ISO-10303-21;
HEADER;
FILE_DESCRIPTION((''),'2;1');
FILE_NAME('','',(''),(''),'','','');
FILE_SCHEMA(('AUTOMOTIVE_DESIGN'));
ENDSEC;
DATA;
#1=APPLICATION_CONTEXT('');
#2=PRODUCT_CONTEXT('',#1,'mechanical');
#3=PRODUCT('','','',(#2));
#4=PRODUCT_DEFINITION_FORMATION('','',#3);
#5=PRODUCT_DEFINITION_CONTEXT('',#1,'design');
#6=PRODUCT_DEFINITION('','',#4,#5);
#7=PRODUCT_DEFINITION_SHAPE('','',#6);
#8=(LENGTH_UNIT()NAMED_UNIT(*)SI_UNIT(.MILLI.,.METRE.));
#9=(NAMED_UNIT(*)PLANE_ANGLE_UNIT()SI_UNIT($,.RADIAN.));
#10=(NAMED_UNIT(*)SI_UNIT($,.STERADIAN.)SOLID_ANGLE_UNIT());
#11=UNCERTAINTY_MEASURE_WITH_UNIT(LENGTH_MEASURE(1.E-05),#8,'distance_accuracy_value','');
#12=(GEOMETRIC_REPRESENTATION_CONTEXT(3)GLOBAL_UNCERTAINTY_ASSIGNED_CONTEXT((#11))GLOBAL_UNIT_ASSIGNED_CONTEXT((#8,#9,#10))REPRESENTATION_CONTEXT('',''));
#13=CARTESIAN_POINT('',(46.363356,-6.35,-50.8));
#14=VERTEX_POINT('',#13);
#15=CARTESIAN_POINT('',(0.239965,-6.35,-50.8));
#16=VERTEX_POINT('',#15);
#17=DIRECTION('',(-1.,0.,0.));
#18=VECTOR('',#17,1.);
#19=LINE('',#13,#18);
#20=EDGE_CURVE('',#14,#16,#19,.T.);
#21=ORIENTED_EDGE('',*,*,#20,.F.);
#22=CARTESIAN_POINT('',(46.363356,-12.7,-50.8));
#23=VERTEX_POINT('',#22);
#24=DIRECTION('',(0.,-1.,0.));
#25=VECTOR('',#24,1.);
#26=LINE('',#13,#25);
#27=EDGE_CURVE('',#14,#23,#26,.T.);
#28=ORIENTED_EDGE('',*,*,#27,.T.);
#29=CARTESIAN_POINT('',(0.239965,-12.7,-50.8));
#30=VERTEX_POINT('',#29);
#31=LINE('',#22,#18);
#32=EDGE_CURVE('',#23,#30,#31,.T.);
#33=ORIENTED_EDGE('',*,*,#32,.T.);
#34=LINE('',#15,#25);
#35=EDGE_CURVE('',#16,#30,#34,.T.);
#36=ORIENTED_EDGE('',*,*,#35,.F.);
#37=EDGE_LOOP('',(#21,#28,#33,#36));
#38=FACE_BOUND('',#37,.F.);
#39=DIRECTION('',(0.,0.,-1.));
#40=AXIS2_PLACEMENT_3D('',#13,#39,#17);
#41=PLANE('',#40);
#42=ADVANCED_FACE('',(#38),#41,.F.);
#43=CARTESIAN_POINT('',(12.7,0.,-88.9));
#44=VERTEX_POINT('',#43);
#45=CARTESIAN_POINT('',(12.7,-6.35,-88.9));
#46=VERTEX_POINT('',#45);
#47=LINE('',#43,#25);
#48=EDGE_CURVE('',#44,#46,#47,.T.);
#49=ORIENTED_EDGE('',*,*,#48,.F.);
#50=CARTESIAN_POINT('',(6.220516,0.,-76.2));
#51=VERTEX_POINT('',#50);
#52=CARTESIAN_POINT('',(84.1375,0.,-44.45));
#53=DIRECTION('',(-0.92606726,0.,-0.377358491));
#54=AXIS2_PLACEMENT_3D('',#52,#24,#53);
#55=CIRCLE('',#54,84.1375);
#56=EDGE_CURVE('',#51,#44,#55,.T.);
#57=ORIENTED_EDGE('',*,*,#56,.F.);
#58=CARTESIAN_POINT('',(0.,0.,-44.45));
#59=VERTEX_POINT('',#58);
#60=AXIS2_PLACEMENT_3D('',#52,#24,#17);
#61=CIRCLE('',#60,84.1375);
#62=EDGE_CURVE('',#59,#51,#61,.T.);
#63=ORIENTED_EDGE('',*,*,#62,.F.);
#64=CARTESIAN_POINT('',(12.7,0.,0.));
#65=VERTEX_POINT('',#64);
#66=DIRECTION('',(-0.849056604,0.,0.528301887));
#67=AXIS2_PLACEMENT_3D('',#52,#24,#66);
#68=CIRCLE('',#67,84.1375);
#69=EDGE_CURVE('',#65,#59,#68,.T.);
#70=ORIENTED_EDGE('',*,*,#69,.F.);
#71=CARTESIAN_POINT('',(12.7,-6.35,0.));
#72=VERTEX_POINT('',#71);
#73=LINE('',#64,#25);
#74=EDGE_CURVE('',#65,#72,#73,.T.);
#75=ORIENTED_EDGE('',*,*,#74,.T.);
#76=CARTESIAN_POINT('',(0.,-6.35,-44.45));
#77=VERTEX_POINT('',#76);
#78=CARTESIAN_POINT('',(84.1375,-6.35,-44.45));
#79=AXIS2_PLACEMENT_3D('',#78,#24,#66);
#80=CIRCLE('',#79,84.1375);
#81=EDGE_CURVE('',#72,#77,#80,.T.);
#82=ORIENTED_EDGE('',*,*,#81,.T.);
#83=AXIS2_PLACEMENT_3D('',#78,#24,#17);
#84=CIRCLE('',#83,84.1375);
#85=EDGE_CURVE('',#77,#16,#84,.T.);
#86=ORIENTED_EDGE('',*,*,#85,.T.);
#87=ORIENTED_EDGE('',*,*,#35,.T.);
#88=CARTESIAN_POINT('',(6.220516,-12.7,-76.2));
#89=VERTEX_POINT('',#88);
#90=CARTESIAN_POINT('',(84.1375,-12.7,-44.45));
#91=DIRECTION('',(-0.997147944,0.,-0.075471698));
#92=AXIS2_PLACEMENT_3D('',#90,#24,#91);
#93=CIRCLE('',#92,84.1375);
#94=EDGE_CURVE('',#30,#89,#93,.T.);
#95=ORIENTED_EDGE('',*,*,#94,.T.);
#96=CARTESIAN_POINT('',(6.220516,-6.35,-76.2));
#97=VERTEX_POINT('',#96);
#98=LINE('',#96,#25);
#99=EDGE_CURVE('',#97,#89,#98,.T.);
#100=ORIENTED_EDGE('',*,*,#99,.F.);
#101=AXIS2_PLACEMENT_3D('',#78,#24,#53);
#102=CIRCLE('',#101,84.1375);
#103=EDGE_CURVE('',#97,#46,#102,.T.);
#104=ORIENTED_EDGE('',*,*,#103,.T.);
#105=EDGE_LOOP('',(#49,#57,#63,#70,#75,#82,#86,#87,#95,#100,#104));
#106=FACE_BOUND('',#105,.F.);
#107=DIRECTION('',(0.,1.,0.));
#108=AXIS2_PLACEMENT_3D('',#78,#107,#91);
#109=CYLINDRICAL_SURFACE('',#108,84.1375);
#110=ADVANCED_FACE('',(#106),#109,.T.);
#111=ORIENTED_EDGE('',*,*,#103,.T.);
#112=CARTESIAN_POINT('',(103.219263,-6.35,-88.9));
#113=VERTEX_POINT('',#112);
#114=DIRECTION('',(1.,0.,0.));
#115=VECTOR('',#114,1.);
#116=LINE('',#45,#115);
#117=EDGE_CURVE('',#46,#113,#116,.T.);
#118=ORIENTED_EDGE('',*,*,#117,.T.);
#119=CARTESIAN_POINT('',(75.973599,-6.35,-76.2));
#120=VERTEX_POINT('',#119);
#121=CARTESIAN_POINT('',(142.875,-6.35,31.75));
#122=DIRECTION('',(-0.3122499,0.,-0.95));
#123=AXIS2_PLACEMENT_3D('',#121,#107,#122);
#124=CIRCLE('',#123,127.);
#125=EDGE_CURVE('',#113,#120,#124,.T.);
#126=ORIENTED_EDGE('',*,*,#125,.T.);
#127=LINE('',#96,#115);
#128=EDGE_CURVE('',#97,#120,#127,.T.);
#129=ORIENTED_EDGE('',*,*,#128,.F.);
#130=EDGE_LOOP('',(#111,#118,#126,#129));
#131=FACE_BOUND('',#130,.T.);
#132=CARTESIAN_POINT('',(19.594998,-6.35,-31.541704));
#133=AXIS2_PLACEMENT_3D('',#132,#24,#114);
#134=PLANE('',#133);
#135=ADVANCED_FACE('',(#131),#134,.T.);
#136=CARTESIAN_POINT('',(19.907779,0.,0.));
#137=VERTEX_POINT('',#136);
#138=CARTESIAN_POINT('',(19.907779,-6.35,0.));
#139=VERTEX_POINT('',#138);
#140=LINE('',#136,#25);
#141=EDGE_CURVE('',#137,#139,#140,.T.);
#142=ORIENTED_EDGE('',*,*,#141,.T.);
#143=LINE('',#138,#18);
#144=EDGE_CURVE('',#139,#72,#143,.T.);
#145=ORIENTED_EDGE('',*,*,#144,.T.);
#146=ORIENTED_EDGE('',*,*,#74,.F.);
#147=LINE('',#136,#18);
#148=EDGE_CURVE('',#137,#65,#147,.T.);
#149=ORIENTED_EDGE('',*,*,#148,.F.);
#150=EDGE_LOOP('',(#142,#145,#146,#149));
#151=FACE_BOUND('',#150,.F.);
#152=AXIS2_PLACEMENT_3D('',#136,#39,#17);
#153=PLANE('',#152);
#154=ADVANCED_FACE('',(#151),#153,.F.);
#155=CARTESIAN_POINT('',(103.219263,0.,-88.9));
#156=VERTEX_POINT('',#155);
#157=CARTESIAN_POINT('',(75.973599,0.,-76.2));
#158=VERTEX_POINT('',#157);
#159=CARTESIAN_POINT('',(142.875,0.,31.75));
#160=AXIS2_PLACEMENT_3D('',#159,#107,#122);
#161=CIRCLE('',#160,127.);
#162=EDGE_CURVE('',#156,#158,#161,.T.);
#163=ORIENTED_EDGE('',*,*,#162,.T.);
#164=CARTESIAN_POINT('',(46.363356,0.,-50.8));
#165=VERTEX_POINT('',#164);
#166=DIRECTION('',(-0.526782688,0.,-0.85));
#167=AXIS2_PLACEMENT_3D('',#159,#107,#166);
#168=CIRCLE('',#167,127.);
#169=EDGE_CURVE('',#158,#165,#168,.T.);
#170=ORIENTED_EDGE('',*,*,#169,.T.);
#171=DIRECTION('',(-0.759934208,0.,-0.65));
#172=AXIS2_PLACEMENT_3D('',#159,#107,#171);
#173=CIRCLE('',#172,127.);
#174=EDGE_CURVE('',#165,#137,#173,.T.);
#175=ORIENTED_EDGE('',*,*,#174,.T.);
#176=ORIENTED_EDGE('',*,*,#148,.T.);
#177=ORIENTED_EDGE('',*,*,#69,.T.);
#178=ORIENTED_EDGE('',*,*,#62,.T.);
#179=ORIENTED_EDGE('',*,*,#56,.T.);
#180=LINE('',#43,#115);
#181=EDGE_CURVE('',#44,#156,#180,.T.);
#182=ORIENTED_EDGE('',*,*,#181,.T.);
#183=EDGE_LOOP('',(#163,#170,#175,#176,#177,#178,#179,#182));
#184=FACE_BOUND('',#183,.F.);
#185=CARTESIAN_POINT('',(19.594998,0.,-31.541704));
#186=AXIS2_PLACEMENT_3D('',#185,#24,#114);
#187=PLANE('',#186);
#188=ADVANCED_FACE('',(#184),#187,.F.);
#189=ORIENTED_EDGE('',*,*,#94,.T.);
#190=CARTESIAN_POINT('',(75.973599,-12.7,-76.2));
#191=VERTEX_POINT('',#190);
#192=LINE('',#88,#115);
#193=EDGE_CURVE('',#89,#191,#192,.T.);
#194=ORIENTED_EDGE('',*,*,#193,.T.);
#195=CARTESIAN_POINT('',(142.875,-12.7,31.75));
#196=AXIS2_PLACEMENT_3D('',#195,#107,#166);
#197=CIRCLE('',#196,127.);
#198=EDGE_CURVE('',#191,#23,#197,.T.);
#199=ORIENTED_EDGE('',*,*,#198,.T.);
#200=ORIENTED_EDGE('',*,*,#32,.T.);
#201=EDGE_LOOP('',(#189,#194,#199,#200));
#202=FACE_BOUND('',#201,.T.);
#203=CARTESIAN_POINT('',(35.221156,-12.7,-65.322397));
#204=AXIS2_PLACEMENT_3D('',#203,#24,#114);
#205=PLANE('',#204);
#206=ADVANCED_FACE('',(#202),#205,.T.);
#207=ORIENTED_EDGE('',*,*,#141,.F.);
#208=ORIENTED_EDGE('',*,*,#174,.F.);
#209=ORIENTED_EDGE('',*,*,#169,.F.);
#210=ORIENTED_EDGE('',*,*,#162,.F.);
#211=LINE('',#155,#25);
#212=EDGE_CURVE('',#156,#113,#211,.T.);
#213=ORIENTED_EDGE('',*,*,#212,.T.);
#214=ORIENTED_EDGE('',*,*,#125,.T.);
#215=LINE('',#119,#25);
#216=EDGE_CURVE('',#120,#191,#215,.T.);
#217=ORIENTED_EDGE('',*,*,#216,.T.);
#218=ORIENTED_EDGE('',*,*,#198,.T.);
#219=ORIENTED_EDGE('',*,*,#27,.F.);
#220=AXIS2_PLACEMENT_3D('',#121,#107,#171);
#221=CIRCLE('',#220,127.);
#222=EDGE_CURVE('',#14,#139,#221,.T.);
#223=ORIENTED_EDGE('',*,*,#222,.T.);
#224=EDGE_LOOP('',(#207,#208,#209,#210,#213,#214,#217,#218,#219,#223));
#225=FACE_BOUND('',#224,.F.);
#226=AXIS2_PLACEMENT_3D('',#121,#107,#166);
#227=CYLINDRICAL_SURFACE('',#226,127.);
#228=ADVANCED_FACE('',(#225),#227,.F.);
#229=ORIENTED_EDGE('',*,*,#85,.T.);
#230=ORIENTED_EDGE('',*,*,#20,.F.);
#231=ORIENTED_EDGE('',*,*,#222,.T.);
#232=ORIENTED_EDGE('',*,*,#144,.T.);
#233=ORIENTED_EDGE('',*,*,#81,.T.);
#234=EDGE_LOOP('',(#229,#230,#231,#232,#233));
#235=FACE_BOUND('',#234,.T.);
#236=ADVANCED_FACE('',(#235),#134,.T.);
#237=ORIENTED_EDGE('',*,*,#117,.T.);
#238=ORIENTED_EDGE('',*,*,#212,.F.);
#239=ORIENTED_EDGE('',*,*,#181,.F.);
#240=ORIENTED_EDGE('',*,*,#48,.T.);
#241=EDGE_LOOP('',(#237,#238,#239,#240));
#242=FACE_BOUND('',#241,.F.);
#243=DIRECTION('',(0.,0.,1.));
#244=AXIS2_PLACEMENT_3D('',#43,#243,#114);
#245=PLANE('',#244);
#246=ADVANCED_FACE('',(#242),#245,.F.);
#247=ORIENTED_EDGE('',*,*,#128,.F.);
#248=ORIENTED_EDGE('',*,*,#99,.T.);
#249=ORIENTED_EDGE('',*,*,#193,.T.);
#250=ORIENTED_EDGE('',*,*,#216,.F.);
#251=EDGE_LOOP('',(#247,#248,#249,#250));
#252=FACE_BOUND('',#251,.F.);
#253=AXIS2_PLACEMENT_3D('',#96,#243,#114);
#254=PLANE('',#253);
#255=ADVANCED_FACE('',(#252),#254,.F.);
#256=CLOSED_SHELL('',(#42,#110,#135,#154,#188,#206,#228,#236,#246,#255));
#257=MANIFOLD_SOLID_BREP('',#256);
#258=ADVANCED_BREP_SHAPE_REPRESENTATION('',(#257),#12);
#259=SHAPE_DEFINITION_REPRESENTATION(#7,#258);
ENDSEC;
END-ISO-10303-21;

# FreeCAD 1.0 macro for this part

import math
import FreeCAD as App
import Part
import Sketcher

V = App.Vector
Q = App.Units.Quantity

doc = App.newDocument("Part")
body = doc.addObject("PartDesign::Body", "Body")

# Sketch on XZ plane
sketch1 = doc.addObject("Sketcher::SketchObject", "Sketch")
body.addObject(sketch1)
sketch1.AttachmentSupport = (doc.XZ_Plane, [""])
sketch1.MapMode = "FlatFace"
sketch1.addGeometry([
    Part.ArcOfCircle(Part.Circle(V(84, -44, 0), V(0, 0, 1), 84), math.radians(148), math.radians(180)),  # 0
    Part.ArcOfCircle(Part.Circle(V(84, -44, 0), V(0, 0, 1), 84), math.radians(-180), math.radians(-158)),  # 1
    Part.ArcOfCircle(Part.Circle(V(84, -44, 0), V(0, 0, 1), 84), math.radians(-157.83), math.radians(-148.11)),  # 2
    Part.LineSegment(V(13, -89, 0), V(103, -89, 0)),  # 3
    Part.ArcOfCircle(Part.Circle(V(143, 32, 0), V(0, 0, 1), 127), math.radians(-121.79), math.radians(-108.19)),  # 4
    Part.ArcOfCircle(Part.Circle(V(143, 32, 0), V(0, 0, 1), 127), math.radians(-139.46), math.radians(-121.79)),  # 5
    Part.ArcOfCircle(Part.Circle(V(143, 32, 0), V(0, 0, 1), 127), math.radians(-166), math.radians(-139)),  # 6
    Part.LineSegment(V(20, 0, 0), V(13, 0, 0)),  # 7
], False)
sketch1.addConstraint([
    Sketcher.Constraint("Tangent", 0, 2, 1, 1),
    Sketcher.Constraint("Tangent", 1, 2, 2, 1),
    Sketcher.Constraint("Coincident", 2, 2, 3, 1),
    Sketcher.Constraint("Coincident", 3, 2, 4, 2),
    Sketcher.Constraint("Tangent", 4, 1, 5, 2),
    Sketcher.Constraint("Tangent", 5, 1, 6, 2),
    Sketcher.Constraint("Coincident", 6, 1, 7, 1),
    Sketcher.Constraint("Coincident", 7, 2, 0, 1),
    Sketcher.Constraint("Horizontal", 3),
    Sketcher.Constraint("Horizontal", 7),
    Sketcher.Constraint("Coincident", 2, 3, 0, 3),
    Sketcher.Constraint("Coincident", 6, 3, 4, 3),
    Sketcher.Constraint("PointOnObject", 0, 2, -2),
    Sketcher.Constraint("PointOnObject", 6, 1, -1),
    Sketcher.Constraint("Horizontal", 2, 3, 0, 2),
    Sketcher.Constraint("Horizontal", 1, 2, 4, 1),
    Sketcher.Constraint("Vertical", 2, 2, 7, 2),
    Sketcher.Constraint("Radius", 4, Q("5 in")),
    Sketcher.Constraint("DistanceY", 1, 2, -1, 1, Q("3 in")),
    Sketcher.Constraint("DistanceY", 5, 1, -1, 1, Q("2 in")),
    Sketcher.Constraint("Radius", 0, Q("3.3125 in")),
    Sketcher.Constraint("DistanceY", 1, 3, 4, 3, Q("3 in")),
    Sketcher.Constraint("DistanceX", -1, 1, 2, 2, Q("0.5 in")),
    Sketcher.Constraint("DistanceX", -1, 1, 4, 3, Q("5.625 in")),
])
pad1 = doc.addObject("PartDesign::Pad", "Pad")
body.addObject(pad1)
pad1.Profile = sketch1
pad1.Length = Q("0.25 in")

# Sketch on XZ plane
sketch2 = doc.addObject("Sketcher::SketchObject", "Sketch001")
body.addObject(sketch2)
sketch2.AttachmentSupport = (doc.XZ_Plane, [""])
sketch2.MapMode = "FlatFace"
sketch2.AttachmentOffset = App.Placement(V(0, 0, 0.25 * 25.4), App.Rotation())
sketch2.addGeometry([
    Part.ArcOfCircle(Part.Circle(V(84, -44, 0), V(0, 0, 1), 84), math.radians(-175.67), math.radians(-157.83)),
    Part.LineSegment(V(6, -76, 0), V(76, -76, 0)),
    Part.ArcOfCircle(Part.Circle(V(143, 32, 0), V(0, 0, 1), 127), math.radians(-139.46), math.radians(-121.79)),
    Part.LineSegment(V(46, -51, 0), V(0, -51, 0)),
], False)
sketch2.addConstraint([
    Sketcher.Constraint("Coincident", 0, 2, 1, 1),
    Sketcher.Constraint("Coincident", 1, 2, 2, 2),
    Sketcher.Constraint("Coincident", 2, 1, 3, 1),
    Sketcher.Constraint("Coincident", 3, 2, 0, 1),
    Sketcher.Constraint("Horizontal", 1),
    Sketcher.Constraint("Horizontal", 3),
    Sketcher.Constraint("Radius", 2, Q("5 in")),
    Sketcher.Constraint("DistanceY", 0, 2, -1, 1, Q("3 in")),
    Sketcher.Constraint("DistanceY", 2, 1, -1, 1, Q("2 in")),
    Sketcher.Constraint("Radius", 0, Q("3.3125 in")),
    Sketcher.Constraint("DistanceY", 0, 3, 2, 3, Q("3 in")),
    Sketcher.Constraint("DistanceY", 0, 3, -1, 1, Q("1.75 in")),
    Sketcher.Constraint("DistanceX", -1, 1, 0, 3, Q("3.3125 in")),
    Sketcher.Constraint("DistanceX", -1, 1, 2, 3, Q("5.625 in")),
])
pad2 = doc.addObject("PartDesign::Pad", "Pad001")
body.addObject(pad2)
pad2.Profile = sketch2
pad2.Length = Q("0.25 in")

doc.recompute()
